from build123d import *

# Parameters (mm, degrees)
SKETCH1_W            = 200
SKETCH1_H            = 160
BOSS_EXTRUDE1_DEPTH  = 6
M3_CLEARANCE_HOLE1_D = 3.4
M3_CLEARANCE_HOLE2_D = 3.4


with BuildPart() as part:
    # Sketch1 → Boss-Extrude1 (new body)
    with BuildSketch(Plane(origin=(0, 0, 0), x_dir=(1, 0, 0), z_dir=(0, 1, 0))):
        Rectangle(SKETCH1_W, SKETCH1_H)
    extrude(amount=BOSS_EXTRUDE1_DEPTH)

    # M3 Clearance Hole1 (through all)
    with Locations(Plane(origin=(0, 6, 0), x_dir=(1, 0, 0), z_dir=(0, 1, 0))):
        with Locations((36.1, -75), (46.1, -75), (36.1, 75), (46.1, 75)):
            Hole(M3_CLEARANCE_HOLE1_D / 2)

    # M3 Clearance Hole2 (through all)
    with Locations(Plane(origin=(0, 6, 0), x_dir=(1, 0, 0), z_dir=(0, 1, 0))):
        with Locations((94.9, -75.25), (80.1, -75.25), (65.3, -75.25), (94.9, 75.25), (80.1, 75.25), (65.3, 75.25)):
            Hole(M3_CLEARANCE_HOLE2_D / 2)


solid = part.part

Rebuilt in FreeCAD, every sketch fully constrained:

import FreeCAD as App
import Part
import Sketcher
Q = App.Units.Quantity


def add_polygon(sketch, points):
    """Adds a closed chain of lines whose ends are joined by coincident constraints."""
    first, n = sketch.GeometryCount, len(points)
    for a, b in zip(points, points[1:] + points[:1]):
        sketch.addGeometry(Part.LineSegment(App.Vector(*a, 0), App.Vector(*b, 0)), False)
    for i in range(n):
        sketch.addConstraint(Sketcher.Constraint("Coincident", first + i, 2, first + (i + 1) % n, 1))

doc = App.newDocument("Part")
params = doc.addObject("Spreadsheet::Sheet", "Params")
for row, (alias, value) in enumerate([
    ("sketch1_width", "200 mm"),
    ("sketch1_height", "160 mm"),
    ("pad1_length", "6 mm"),
    ("sketch2_diameter", "3.4 mm"),
    ("hole_diameter", "3.4 mm"),
    ("sketch3_diameter", "3.4 mm"),
    ("hole2_diameter", "3.4 mm"),
], start=1):
    params.set(f"A{row}", alias)
    params.set(f"B{row}", "=" + value)
    params.setAlias(f"B{row}", alias)

body = doc.addObject("PartDesign::Body", "Body")

sketch1 = body.newObject("Sketcher::SketchObject", "Sketch")
sketch1.AttachmentSupport = (doc.getObject("XZ_Plane"), [""])
sketch1.MapMode = "FlatFace"
add_polygon(sketch1, [(-100, -80), (-100, 80), (100, 80), (100, -80)])
sketch1.addConstraint([
    Sketcher.Constraint("Vertical", 0),
    Sketcher.Constraint("Horizontal", 1),
    Sketcher.Constraint("Vertical", 2),
    Sketcher.Constraint("Horizontal", 3),
    Sketcher.Constraint("Symmetric", 0, 2, 2, 2, -1, 1),
    Sketcher.Constraint("DistanceX", 1, 1, 1, 2, Q("200 mm")),
    Sketcher.Constraint("DistanceY", 0, 1, 0, 2, Q("160 mm")),
])
sketch1.setExpression("Constraints[9]", "Params.sketch1_width")
sketch1.setExpression("Constraints[10]", "Params.sketch1_height")
pad1 = body.newObject("PartDesign::Pad", "Pad")
pad1.Profile = sketch1
pad1.setExpression("Length", "Params.pad1_length")
pad1.Reversed = True

sketch2 = body.newObject("Sketcher::SketchObject", "Sketch001")
sketch2.AttachmentSupport = (doc.getObject("XZ_Plane"), [""])
sketch2.MapMode = "FlatFace"
sketch2.AttachmentOffset = App.Placement(App.Vector(0, 0, -6), App.Rotation())
sketch2.addGeometry([
    Part.Circle(App.Vector(36.1, 75, 0), App.Vector(0, 0, 1), 1.7),
    Part.Circle(App.Vector(46.1, 75, 0), App.Vector(0, 0, 1), 1.7),
    Part.Circle(App.Vector(36.1, -75, 0), App.Vector(0, 0, 1), 1.7),
    Part.Circle(App.Vector(46.1, -75, 0), App.Vector(0, 0, 1), 1.7),
], False)
sketch2.addConstraint([
    Sketcher.Constraint("Equal", 0, 1),
    Sketcher.Constraint("Equal", 1, 2),
    Sketcher.Constraint("Equal", 2, 3),
    Sketcher.Constraint("Symmetric", 0, 3, 2, 3, -1),
    Sketcher.Constraint("Symmetric", 1, 3, 3, 3, -1),
    Sketcher.Constraint("Horizontal", 0, 3, 1, 3),
    Sketcher.Constraint("Diameter", 0, Q("3.4 mm")),
    Sketcher.Constraint("DistanceY", -1, 1, 0, 3, Q("75 mm")),
    Sketcher.Constraint("DistanceX", 0, 3, 1, 3, Q("10 mm")),
    Sketcher.Constraint("DistanceX", -1, 1, 0, 3, Q("36.1 mm")),
])
sketch2.setExpression("Constraints[6]", "Params.sketch2_diameter")
doc.recompute()
hole = body.newObject("PartDesign::Hole", "Hole")
hole.Profile = sketch2
hole.ThreadType = "None"
hole.setExpression("Diameter", "Params.hole_diameter")
hole.DepthType = "ThroughAll"
hole.Reversed = True

sketch3 = body.newObject("Sketcher::SketchObject", "Sketch002")
sketch3.AttachmentSupport = (doc.getObject("XZ_Plane"), [""])
sketch3.MapMode = "FlatFace"
sketch3.AttachmentOffset = App.Placement(App.Vector(0, 0, -6), App.Rotation())
sketch3.addGeometry([
    Part.Circle(App.Vector(94.9, 75.2, 0), App.Vector(0, 0, 1), 1.7),
    Part.Circle(App.Vector(80.1, 75.2, 0), App.Vector(0, 0, 1), 1.7),
    Part.Circle(App.Vector(65.3, 75.2, 0), App.Vector(0, 0, 1), 1.7),
    Part.Circle(App.Vector(94.9, -75.2, 0), App.Vector(0, 0, 1), 1.7),
    Part.Circle(App.Vector(80.1, -75.2, 0), App.Vector(0, 0, 1), 1.7),
    Part.Circle(App.Vector(65.3, -75.2, 0), App.Vector(0, 0, 1), 1.7),
], False)
sketch3.addConstraint([
    Sketcher.Constraint("Equal", 0, 1),
    Sketcher.Constraint("Equal", 1, 2),
    Sketcher.Constraint("Equal", 2, 3),
    Sketcher.Constraint("Equal", 3, 4),
    Sketcher.Constraint("Equal", 4, 5),
    Sketcher.Constraint("Symmetric", 0, 3, 3, 3, -1),
    Sketcher.Constraint("Symmetric", 1, 3, 4, 3, -1),
    Sketcher.Constraint("Symmetric", 2, 3, 5, 3, -1),
    Sketcher.Constraint("Horizontal", 0, 3, 1, 3),
    Sketcher.Constraint("Horizontal", 1, 3, 2, 3),
    Sketcher.Constraint("Diameter", 0, Q("3.4 mm")),
    Sketcher.Constraint("DistanceX", -1, 1, 0, 3, Q("94.9 mm")),
    Sketcher.Constraint("DistanceX", -1, 1, 1, 3, Q("80.1 mm")),
    Sketcher.Constraint("DistanceX", -1, 1, 2, 3, Q("65.3 mm")),
    Sketcher.Constraint("DistanceY", 3, 3, 0, 3, Q("150.5 mm")),
])
sketch3.setExpression("Constraints[10]", "Params.sketch3_diameter")
doc.recompute()
hole2 = body.newObject("PartDesign::Hole", "Hole001")
hole2.Profile = sketch3
hole2.ThreadType = "None"
hole2.setExpression("Diameter", "Params.hole2_diameter")
hole2.DepthType = "ThroughAll"
hole2.Reversed = True

doc.recompute()
